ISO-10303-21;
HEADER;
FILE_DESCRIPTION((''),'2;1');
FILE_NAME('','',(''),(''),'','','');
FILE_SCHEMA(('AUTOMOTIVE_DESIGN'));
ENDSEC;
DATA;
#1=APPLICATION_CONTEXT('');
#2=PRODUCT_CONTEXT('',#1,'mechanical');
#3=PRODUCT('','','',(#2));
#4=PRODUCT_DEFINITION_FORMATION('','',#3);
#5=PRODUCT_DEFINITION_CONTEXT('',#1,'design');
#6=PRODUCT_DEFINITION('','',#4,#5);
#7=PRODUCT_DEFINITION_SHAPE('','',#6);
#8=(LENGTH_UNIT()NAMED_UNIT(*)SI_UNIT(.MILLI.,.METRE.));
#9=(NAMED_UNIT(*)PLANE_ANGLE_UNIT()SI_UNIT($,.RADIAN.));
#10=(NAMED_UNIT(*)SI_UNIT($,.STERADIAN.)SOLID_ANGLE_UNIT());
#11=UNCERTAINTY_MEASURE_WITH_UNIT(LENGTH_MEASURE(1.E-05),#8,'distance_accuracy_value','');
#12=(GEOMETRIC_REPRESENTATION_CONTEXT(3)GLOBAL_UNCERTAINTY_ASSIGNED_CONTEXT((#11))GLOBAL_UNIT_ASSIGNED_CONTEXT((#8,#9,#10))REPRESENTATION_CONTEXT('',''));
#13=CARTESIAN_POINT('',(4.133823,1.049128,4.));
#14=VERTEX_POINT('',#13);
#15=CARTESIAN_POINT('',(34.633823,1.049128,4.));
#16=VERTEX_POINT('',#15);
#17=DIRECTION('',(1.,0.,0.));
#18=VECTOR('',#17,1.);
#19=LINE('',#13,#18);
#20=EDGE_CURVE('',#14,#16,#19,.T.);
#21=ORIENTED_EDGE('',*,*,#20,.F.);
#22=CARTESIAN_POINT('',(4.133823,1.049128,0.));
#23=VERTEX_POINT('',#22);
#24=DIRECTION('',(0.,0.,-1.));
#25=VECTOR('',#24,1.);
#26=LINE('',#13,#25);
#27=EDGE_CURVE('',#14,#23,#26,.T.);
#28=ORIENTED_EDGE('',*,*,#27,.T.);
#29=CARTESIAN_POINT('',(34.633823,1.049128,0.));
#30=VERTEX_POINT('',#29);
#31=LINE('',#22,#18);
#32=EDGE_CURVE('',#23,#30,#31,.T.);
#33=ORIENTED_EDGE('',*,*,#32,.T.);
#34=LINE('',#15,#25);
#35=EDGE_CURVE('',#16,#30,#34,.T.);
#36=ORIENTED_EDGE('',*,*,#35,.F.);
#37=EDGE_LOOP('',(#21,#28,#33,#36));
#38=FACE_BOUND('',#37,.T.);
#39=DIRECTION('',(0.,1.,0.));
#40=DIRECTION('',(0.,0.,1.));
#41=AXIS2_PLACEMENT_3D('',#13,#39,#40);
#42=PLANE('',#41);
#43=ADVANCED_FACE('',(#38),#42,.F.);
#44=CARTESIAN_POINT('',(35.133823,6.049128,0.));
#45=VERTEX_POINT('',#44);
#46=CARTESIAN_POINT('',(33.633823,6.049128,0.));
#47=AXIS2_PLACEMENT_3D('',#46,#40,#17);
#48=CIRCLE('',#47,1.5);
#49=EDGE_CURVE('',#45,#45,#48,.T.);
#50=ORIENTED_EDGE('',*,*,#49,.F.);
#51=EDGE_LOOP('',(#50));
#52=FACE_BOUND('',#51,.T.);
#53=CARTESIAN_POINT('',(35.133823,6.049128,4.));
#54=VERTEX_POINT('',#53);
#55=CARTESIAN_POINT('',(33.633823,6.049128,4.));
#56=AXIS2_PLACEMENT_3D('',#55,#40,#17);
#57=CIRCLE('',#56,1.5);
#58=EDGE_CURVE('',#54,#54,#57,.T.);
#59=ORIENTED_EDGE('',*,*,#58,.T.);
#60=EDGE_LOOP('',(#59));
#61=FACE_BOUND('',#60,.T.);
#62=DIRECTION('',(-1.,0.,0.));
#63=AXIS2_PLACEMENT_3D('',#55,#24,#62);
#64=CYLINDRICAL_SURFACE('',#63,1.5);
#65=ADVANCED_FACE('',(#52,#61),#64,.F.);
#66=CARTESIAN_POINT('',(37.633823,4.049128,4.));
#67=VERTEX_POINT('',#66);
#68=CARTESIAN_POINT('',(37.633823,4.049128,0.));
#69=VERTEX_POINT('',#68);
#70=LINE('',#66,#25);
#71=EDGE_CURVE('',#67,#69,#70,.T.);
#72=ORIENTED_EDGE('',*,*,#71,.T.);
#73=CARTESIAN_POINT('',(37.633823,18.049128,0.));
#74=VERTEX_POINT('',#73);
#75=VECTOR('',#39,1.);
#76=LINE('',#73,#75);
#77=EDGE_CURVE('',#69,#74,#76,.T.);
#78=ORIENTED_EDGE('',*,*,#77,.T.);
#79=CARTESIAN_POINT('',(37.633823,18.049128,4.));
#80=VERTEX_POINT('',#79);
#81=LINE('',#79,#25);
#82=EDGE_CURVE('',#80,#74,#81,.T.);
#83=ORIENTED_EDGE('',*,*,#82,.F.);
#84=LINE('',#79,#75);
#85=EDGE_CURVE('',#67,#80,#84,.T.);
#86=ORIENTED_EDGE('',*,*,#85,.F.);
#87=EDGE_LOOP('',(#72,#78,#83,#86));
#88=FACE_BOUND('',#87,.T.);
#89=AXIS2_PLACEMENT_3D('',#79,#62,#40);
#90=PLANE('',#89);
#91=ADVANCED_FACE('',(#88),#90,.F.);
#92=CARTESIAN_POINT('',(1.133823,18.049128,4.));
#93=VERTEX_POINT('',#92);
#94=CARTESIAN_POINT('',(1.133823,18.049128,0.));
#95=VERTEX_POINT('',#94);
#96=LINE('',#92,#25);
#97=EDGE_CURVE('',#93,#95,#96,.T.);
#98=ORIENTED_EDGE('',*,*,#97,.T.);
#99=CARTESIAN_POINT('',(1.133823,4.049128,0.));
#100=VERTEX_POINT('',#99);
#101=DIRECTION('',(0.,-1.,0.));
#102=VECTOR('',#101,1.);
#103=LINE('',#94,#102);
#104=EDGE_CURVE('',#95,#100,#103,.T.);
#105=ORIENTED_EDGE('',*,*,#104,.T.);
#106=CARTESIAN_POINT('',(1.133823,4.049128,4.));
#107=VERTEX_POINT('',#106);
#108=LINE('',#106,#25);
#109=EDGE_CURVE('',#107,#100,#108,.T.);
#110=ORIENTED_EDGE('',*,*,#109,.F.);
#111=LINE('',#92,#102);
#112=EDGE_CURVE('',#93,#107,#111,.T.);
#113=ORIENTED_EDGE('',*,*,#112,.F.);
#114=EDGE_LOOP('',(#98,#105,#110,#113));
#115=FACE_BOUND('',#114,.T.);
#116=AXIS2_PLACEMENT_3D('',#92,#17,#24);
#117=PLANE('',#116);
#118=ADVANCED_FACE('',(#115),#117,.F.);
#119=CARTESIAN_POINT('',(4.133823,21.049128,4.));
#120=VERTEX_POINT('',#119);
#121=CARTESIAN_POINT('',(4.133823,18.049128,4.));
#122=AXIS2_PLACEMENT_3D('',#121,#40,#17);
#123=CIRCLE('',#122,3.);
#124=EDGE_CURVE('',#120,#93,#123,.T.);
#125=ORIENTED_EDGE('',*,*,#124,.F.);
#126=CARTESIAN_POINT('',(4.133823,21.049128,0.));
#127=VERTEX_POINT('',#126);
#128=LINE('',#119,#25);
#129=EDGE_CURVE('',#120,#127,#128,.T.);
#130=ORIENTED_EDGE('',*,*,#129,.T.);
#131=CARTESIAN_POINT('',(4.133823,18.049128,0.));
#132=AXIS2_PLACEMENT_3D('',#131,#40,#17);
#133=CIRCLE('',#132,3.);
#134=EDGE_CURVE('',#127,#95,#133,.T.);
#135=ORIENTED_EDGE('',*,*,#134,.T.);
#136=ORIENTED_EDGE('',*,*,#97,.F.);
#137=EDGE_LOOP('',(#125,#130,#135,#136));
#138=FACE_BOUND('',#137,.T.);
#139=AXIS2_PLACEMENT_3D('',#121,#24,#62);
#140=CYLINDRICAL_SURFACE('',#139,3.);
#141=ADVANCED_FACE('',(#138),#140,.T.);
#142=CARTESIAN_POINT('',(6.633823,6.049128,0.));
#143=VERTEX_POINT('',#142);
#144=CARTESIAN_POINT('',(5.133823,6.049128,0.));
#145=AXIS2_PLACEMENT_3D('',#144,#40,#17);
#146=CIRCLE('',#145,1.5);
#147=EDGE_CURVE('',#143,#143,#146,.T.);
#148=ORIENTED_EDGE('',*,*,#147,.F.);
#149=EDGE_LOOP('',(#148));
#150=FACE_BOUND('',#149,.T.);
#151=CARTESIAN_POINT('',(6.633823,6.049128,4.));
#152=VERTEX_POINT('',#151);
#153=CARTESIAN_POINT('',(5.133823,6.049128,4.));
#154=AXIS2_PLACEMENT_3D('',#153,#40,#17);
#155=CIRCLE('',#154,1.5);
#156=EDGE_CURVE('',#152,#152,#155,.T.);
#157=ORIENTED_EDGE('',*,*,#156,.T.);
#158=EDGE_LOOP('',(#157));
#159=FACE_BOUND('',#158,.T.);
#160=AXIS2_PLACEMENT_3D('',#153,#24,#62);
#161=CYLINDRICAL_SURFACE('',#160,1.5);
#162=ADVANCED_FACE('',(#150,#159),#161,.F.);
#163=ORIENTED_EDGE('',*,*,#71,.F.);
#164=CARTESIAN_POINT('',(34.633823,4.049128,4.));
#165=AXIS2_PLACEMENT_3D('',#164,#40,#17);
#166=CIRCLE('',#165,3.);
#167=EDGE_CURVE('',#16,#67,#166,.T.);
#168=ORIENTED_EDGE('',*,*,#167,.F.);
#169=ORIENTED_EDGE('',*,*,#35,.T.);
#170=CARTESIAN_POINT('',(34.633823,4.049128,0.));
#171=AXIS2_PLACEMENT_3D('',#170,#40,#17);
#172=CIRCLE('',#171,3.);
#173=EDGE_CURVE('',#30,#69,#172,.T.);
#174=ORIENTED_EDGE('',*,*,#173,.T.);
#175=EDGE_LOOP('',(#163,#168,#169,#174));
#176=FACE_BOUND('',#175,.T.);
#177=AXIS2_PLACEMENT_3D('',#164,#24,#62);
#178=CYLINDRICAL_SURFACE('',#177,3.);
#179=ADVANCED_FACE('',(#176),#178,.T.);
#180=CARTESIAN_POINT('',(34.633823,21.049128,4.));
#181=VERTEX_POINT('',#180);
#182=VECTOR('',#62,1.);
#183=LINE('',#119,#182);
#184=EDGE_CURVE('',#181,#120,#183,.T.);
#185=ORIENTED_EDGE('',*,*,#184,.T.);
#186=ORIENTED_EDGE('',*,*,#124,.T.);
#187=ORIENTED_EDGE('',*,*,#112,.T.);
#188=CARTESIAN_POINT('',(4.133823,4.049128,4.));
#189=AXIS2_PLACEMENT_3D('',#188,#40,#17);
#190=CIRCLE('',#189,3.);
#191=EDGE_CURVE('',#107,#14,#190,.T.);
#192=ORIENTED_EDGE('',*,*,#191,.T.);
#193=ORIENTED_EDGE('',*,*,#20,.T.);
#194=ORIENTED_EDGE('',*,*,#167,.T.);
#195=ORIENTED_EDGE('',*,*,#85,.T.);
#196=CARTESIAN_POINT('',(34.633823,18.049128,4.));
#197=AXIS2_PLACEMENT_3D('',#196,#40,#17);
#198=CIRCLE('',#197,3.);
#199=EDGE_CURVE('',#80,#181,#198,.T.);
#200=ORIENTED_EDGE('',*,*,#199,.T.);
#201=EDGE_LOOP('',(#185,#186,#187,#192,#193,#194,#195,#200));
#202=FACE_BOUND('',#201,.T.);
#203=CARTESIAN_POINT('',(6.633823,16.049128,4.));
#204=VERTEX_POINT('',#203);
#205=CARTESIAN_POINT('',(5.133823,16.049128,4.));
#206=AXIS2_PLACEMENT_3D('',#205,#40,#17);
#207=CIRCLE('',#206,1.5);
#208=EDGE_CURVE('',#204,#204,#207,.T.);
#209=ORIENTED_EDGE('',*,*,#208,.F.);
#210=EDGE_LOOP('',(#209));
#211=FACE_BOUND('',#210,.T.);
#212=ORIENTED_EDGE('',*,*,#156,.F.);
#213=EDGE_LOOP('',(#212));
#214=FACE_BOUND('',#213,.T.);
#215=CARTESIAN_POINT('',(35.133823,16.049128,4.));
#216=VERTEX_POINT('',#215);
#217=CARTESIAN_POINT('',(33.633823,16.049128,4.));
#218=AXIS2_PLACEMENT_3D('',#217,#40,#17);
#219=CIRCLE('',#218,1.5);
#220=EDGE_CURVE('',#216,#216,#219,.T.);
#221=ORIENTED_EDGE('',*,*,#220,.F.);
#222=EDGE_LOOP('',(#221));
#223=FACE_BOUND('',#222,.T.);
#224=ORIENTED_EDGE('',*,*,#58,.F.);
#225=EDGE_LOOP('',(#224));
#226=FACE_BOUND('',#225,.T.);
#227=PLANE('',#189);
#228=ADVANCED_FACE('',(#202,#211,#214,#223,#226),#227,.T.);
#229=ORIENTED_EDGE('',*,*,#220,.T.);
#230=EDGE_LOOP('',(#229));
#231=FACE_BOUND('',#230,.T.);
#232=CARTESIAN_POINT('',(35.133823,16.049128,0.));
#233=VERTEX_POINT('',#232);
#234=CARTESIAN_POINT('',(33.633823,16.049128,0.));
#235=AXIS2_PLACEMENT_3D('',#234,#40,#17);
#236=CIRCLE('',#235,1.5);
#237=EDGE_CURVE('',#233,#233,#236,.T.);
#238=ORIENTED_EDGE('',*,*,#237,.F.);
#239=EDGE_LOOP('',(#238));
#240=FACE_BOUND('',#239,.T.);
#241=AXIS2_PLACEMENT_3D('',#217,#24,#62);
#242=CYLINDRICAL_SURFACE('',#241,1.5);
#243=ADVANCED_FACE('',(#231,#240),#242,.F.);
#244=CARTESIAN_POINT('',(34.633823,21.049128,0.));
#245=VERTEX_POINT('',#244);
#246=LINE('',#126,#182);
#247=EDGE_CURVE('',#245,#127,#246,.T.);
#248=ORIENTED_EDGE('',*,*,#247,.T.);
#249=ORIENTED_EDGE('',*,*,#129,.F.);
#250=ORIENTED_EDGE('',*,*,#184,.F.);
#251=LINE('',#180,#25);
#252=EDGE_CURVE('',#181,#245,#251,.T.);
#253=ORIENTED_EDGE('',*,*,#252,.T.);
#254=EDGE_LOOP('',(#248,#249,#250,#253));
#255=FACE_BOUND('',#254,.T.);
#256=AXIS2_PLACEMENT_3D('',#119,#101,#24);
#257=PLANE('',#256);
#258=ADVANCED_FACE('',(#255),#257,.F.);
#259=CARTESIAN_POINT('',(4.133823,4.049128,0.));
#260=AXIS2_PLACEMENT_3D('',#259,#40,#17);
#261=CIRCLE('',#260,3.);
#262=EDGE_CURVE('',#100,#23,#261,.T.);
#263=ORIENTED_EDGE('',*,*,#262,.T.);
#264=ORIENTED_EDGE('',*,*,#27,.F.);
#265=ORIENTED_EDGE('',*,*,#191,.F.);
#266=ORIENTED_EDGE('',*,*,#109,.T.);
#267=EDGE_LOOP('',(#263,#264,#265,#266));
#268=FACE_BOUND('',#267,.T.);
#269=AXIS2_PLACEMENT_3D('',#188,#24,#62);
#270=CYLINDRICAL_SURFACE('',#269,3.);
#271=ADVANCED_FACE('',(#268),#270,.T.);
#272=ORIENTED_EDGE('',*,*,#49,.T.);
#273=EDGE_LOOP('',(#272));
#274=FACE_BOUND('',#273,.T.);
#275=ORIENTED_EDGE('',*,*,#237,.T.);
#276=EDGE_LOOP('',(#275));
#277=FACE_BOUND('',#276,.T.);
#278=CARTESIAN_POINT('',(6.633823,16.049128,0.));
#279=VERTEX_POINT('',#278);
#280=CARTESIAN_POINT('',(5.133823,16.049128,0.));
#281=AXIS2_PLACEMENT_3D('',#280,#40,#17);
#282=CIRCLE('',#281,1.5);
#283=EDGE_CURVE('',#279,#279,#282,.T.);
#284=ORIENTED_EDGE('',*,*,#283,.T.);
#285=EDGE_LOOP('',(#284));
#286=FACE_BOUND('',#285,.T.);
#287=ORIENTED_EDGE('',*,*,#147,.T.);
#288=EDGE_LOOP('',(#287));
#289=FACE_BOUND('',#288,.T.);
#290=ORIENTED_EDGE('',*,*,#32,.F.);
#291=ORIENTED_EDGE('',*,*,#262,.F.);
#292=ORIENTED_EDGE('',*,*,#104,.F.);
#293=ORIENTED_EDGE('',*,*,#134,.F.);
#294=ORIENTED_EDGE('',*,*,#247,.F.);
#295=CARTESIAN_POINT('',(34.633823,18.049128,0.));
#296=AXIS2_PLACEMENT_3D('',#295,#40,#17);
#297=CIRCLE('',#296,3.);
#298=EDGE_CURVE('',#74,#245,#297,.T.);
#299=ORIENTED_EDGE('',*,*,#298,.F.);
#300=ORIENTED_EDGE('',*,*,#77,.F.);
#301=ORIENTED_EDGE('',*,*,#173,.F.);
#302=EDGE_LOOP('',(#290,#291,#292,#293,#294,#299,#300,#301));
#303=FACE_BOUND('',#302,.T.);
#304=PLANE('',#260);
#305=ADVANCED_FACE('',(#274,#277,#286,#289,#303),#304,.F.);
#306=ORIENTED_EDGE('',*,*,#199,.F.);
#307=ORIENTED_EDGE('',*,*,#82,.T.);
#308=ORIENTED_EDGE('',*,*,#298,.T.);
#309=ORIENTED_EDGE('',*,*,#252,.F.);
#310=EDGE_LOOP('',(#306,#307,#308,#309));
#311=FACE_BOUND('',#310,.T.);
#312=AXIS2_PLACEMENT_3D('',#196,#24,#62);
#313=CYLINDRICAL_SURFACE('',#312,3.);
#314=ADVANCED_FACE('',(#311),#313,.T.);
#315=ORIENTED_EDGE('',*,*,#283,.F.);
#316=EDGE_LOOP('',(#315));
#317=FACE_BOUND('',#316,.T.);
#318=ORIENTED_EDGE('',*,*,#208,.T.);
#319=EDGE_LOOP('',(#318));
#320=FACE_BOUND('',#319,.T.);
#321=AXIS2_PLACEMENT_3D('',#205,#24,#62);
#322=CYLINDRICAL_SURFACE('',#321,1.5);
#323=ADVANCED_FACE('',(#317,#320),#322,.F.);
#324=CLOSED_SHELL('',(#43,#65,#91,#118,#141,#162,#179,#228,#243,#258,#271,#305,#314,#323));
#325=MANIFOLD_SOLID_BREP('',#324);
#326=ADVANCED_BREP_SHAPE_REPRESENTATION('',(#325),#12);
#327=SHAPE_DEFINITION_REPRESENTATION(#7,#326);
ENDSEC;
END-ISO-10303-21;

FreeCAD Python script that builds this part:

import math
import FreeCAD as App
import Part
import Sketcher

V = App.Vector
Q = App.Units.Quantity

doc = App.newDocument("Part")
params = doc.addObject("Spreadsheet::Sheet", "Params")
for row, (alias, value) in enumerate([
    ("sketch1_diameter", "3 mm"),
    ("sketch1_radius", "3 mm"),
    ("sketch1_height", "14 mm"),
    ("sketch1_width", "30.5 mm"),
    ("pad1_length", "4 mm"),
], start=1):
    params.set(f"A{row}", alias)
    params.set(f"B{row}", "=" + value)
    params.setAlias(f"B{row}", alias)

body = doc.addObject("PartDesign::Body", "Body")

# Sketch on XY plane
sketch1 = body.newObject("Sketcher::SketchObject", "Sketch")
sketch1.AttachmentSupport = (doc.getObject("XY_Plane"), [""])
sketch1.MapMode = "FlatFace"
sketch1.addGeometry(Part.LineSegment(V(4.1, 1, 0), V(34.6, 1, 0)), False)
sketch1.addGeometry(Part.ArcOfCircle(Part.Circle(V(34.6, 4, 0), V(0, 0, 1), 3), math.radians(-90), math.radians(0)), False)
sketch1.addGeometry(Part.LineSegment(V(37.6, 4, 0), V(37.6, 18, 0)), False)
sketch1.addGeometry(Part.ArcOfCircle(Part.Circle(V(34.6, 18, 0), V(0, 0, 1), 3), math.radians(0), math.radians(90)), False)
sketch1.addGeometry(Part.LineSegment(V(34.6, 21, 0), V(4.1, 21, 0)), False)
sketch1.addGeometry(Part.ArcOfCircle(Part.Circle(V(4.1, 18, 0), V(0, 0, 1), 3), math.radians(90), math.radians(180)), False)
sketch1.addGeometry(Part.LineSegment(V(1.1, 18, 0), V(1.1, 4, 0)), False)
sketch1.addGeometry(Part.ArcOfCircle(Part.Circle(V(4.1, 4, 0), V(0, 0, 1), 3), math.radians(180), math.radians(270)), False)
sketch1.addGeometry(Part.Circle(V(5.1, 6, 0), V(0, 0, 1), 1.5), False)
sketch1.addGeometry(Part.Circle(V(33.6, 6, 0), V(0, 0, 1), 1.5), False)
sketch1.addGeometry(Part.Circle(V(5.1, 16, 0), V(0, 0, 1), 1.5), False)
sketch1.addGeometry(Part.Circle(V(33.6, 16, 0), V(0, 0, 1), 1.5), False)
sketch1.addConstraint(Sketcher.Constraint("Tangent", 0, 2, 1, 1))
sketch1.addConstraint(Sketcher.Constraint("Tangent", 1, 2, 2, 1))
sketch1.addConstraint(Sketcher.Constraint("Tangent", 2, 2, 3, 1))
sketch1.addConstraint(Sketcher.Constraint("Tangent", 3, 2, 4, 1))
sketch1.addConstraint(Sketcher.Constraint("Tangent", 4, 2, 5, 1))
sketch1.addConstraint(Sketcher.Constraint("Tangent", 5, 2, 6, 1))
sketch1.addConstraint(Sketcher.Constraint("Tangent", 6, 2, 7, 1))
sketch1.addConstraint(Sketcher.Constraint("Tangent", 7, 2, 0, 1))
sketch1.addConstraint(Sketcher.Constraint("Horizontal", 0))
sketch1.addConstraint(Sketcher.Constraint("Vertical", 2))
sketch1.addConstraint(Sketcher.Constraint("Horizontal", 4))
sketch1.addConstraint(Sketcher.Constraint("Vertical", 6))
sketch1.addConstraint(Sketcher.Constraint("Equal", 1, 3))
sketch1.addConstraint(Sketcher.Constraint("Equal", 3, 5))
sketch1.addConstraint(Sketcher.Constraint("Equal", 5, 7))
sketch1.addConstraint(Sketcher.Constraint("Equal", 8, 9))
sketch1.addConstraint(Sketcher.Constraint("Equal", 9, 10))
sketch1.addConstraint(Sketcher.Constraint("Equal", 10, 11))
sketch1.addConstraint(Sketcher.Constraint("Horizontal", 8, 3, 9, 3))
sketch1.addConstraint(Sketcher.Constraint("Horizontal", 10, 3, 11, 3))
sketch1.addConstraint(Sketcher.Constraint("Vertical", 8, 3, 10, 3))
sketch1.addConstraint(Sketcher.Constraint("Vertical", 9, 3, 11, 3))
sketch1.addConstraint(Sketcher.Constraint("Diameter", 8, Q("3 mm")))
sketch1.addConstraint(Sketcher.Constraint("Radius", 1, Q("3 mm")))
sketch1.addConstraint(Sketcher.Constraint("DistanceY", 2, 1, 2, 2, Q("14 mm")))
sketch1.addConstraint(Sketcher.Constraint("DistanceX", 0, 1, 0, 2, Q("30.5 mm")))
sketch1.addConstraint(Sketcher.Constraint("DistanceX", 7, 3, 8, 3, Q("1 mm")))
sketch1.addConstraint(Sketcher.Constraint("DistanceY", 7, 3, 8, 3, Q("2 mm")))
sketch1.addConstraint(Sketcher.Constraint("DistanceX", 9, 3, 1, 3, Q("1 mm")))
sketch1.addConstraint(Sketcher.Constraint("DistanceY", 10, 3, 5, 3, Q("2 mm")))
sketch1.addConstraint(Sketcher.Constraint("DistanceX", -1, 1, 1, 3, Q("34.633823 mm")))
sketch1.addConstraint(Sketcher.Constraint("DistanceY", -1, 1, 1, 3, Q("4.049128 mm")))
sketch1.setExpression("Constraints[22]", "Params.sketch1_diameter")
sketch1.setExpression("Constraints[23]", "Params.sketch1_radius")
sketch1.setExpression("Constraints[24]", "Params.sketch1_height")
sketch1.setExpression("Constraints[25]", "Params.sketch1_width")
pad1 = body.newObject("PartDesign::Pad", "Pad")
pad1.Profile = sketch1
pad1.setExpression("Length", "Params.pad1_length")

doc.recompute()
